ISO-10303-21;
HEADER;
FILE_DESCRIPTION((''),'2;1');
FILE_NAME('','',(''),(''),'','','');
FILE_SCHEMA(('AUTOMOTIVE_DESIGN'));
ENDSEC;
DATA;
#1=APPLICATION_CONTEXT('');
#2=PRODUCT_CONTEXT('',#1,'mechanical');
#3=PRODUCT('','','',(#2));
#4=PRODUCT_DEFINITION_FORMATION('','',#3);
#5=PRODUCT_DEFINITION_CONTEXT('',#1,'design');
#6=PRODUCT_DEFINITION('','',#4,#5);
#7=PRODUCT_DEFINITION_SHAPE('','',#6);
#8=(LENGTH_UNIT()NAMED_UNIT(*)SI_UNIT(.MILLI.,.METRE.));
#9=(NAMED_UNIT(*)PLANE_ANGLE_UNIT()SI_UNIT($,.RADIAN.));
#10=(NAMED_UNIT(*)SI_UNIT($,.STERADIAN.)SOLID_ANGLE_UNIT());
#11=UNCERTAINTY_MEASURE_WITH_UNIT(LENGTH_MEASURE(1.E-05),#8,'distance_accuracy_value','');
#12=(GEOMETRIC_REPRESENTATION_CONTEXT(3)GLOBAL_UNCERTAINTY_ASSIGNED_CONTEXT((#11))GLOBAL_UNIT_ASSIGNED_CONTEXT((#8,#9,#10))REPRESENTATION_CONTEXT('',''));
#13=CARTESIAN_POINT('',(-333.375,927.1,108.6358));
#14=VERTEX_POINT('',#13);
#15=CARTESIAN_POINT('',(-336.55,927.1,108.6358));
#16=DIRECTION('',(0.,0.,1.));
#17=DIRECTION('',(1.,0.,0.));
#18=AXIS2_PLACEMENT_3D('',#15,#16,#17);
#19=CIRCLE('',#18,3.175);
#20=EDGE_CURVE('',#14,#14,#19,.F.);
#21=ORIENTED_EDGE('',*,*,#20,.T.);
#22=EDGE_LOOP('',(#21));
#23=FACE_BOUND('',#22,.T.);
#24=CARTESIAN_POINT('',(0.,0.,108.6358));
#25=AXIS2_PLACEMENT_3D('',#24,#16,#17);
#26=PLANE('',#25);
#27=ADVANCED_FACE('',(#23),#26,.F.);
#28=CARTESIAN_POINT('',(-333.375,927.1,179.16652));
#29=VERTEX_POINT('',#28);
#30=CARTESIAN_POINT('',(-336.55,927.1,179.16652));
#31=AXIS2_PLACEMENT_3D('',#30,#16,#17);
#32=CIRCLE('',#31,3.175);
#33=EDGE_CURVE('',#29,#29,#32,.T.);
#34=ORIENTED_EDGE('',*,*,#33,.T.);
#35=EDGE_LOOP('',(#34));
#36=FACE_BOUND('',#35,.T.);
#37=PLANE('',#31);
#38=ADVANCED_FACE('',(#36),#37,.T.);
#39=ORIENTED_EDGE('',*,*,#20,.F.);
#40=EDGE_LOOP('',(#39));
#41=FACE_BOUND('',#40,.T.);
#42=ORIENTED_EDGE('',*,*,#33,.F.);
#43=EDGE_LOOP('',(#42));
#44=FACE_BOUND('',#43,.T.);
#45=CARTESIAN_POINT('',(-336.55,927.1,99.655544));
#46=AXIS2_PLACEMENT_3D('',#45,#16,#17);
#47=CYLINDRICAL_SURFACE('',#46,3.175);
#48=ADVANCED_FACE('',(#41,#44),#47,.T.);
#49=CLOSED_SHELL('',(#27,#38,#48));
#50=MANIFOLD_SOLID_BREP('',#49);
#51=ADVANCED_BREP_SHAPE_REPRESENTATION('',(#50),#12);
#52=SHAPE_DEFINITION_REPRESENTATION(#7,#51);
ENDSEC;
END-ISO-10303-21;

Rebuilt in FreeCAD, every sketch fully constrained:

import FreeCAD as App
import Part
import Sketcher
from FreeCAD import Vector
Q = App.Units.Quantity

doc = App.newDocument("Part")
body = doc.addObject("PartDesign::Body", "Body")

sketch1 = body.newObject("Sketcher::SketchObject", "Sketch")
sketch1.AttachmentSupport = (doc.getObject("XY_Plane"), [""])
sketch1.MapMode = "FlatFace"
sketch1.AttachmentOffset = App.Placement(Vector(0, 0, 7.0538 * 25.4), App.Rotation())
sketch1.addGeometry(Part.Circle(Vector(-336.6, 927.1, 0), Vector(0, 0, 1), 3.2), False)
sketch1.addConstraint(Sketcher.Constraint("Diameter", 0, Q("0.25 in")))
sketch1.addConstraint(Sketcher.Constraint("DistanceY", -1, 1, 0, 3, Q("36.5 in")))
sketch1.addConstraint(Sketcher.Constraint("DistanceX", 0, 3, -1, 1, Q("13.25 in")))
pad1 = body.newObject("PartDesign::Pad", "Pad")
pad1.Profile = sketch1
pad1.Length = Q("2.7768 in")
pad1.Reversed = True

doc.recompute()
